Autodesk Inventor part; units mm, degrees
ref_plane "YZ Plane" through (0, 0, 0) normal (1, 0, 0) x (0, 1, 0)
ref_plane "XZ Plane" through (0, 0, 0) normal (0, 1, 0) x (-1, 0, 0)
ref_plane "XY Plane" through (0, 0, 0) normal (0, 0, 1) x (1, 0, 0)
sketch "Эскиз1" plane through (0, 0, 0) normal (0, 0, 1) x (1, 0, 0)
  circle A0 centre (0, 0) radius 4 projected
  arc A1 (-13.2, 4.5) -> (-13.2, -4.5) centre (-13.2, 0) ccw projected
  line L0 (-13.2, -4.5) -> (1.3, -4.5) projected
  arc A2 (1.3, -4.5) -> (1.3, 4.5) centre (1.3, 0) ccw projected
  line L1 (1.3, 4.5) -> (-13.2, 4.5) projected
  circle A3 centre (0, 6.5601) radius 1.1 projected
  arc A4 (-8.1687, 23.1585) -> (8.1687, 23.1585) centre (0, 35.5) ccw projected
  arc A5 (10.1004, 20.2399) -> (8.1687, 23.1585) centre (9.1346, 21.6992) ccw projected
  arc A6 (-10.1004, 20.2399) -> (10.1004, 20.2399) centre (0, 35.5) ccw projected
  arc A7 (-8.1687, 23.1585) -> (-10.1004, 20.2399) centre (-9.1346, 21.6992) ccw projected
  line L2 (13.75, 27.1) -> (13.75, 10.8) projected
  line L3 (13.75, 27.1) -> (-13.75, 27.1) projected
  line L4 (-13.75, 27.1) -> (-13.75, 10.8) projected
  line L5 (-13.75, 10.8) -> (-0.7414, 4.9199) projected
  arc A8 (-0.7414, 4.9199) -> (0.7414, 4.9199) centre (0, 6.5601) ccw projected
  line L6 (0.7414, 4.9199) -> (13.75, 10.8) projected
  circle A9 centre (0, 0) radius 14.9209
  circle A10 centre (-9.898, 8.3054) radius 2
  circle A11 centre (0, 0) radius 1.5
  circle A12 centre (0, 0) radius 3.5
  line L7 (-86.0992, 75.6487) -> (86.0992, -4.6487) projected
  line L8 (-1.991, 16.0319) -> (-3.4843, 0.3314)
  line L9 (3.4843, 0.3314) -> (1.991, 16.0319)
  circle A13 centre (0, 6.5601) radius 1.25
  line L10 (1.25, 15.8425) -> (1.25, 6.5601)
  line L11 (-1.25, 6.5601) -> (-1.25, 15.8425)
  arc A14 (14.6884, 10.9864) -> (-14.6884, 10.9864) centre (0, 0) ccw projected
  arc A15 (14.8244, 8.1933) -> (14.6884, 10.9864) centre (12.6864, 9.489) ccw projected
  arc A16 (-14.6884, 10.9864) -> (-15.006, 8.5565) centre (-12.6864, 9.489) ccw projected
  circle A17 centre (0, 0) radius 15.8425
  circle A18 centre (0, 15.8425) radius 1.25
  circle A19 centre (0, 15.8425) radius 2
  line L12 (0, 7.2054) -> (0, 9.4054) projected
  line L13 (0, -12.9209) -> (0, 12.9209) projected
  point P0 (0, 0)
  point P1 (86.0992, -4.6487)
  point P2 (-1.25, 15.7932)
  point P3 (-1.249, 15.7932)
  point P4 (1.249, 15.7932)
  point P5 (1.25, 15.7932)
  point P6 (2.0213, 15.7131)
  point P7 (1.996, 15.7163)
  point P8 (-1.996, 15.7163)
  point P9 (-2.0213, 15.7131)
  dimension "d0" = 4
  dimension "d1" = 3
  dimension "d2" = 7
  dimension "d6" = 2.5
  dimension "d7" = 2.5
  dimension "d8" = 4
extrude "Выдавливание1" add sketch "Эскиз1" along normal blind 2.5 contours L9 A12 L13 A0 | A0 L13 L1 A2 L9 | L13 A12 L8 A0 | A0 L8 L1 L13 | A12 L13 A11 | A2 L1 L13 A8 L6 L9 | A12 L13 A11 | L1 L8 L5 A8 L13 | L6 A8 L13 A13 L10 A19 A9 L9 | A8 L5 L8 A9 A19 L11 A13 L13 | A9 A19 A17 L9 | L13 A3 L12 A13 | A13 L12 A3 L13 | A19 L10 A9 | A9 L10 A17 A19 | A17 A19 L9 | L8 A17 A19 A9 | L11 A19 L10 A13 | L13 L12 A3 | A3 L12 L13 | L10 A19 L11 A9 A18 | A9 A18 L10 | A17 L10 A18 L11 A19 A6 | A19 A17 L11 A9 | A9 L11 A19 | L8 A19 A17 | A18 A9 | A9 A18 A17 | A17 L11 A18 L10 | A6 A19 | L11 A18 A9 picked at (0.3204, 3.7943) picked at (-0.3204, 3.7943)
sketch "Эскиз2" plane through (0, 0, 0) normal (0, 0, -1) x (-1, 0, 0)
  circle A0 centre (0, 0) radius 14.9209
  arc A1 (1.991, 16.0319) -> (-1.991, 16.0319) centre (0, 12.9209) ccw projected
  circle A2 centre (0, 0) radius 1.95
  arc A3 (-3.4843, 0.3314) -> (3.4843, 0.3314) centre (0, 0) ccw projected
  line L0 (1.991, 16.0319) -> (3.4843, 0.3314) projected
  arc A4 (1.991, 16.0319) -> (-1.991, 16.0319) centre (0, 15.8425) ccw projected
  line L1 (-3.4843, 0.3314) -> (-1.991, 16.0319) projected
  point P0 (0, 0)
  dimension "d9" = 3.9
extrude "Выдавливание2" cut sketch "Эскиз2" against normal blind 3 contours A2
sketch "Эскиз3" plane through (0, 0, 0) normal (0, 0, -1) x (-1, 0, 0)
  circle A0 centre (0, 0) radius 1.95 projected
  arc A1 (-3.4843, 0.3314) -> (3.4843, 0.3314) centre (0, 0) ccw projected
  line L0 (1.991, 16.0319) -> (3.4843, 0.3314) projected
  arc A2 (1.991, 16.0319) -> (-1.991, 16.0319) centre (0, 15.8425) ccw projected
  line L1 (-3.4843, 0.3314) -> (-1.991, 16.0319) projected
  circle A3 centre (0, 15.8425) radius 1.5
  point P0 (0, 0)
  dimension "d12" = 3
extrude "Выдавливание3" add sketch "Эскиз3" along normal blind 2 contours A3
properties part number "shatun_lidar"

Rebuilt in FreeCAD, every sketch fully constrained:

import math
import FreeCAD as App
import Part
import Sketcher

doc = App.newDocument("Part")
body = doc.addObject("PartDesign::Body", "Body")

sketch1 = body.newObject("Sketcher::SketchObject", "Sketch")
sketch1.AttachmentSupport = (doc.getObject("XY_Plane"), [""])
sketch1.MapMode = "FlatFace"
sketch1.addGeometry([
    Part.LineSegment(App.Vector(3.5, 0.3, 0), App.Vector(2, 16, 0)),
    Part.ArcOfCircle(Part.Circle(App.Vector(0, 15.8, 0), App.Vector(0, 0, 1), 2), math.radians(5), math.radians(175)),
    Part.LineSegment(App.Vector(-2, 16, 0), App.Vector(-3.5, 0.3, 0)),
    Part.ArcOfCircle(Part.Circle(App.Vector(0, 0, 0), App.Vector(0, 0, 1), 3.5), math.radians(175), math.radians(365)),
    Part.Circle(App.Vector(0, 0, 0), App.Vector(0, 0, 1), 1.5),
], False)
sketch1.addConstraint([
    Sketcher.Constraint("Tangent", 0, 2, 1, 1),
    Sketcher.Constraint("Tangent", 1, 2, 2, 1),
    Sketcher.Constraint("Tangent", 2, 2, 3, 1),
    Sketcher.Constraint("Tangent", 3, 2, 0, 1),
    Sketcher.Constraint("Coincident", 3, 3, -1, 1),
    Sketcher.Constraint("Coincident", 4, 3, -1, 1),
    Sketcher.Constraint("PointOnObject", 1, 3, -2),
    Sketcher.Constraint("Diameter", 4, 3.0),
    Sketcher.Constraint("Radius", 1, 2.0),
    Sketcher.Constraint("Radius", 3, 3.5),
    Sketcher.Constraint("DistanceY", -1, 1, 0, 2, 16.032),
])
pad1 = body.newObject("PartDesign::Pad", "Pad")
pad1.Profile = sketch1
pad1.Length = 2.5

sketch2 = body.newObject("Sketcher::SketchObject", "Sketch001")
sketch2.AttachmentSupport = (doc.getObject("XY_Plane"), [""])
sketch2.MapMode = "FlatFace"
sketch2.addGeometry(Part.Circle(App.Vector(0, 0, 0), App.Vector(0, 0, 1), 1.9), False)
sketch2.addConstraint([
    Sketcher.Constraint("Coincident", 0, 3, -1, 1),
    Sketcher.Constraint("Diameter", 0, 3.9),
])
pocket1 = body.newObject("PartDesign::Pocket", "Pocket")
pocket1.Profile = sketch2
pocket1.Length = 3
pocket1.Reversed = True

sketch3 = body.newObject("Sketcher::SketchObject", "Sketch002")
sketch3.AttachmentSupport = (doc.getObject("XY_Plane"), [""])
sketch3.MapMode = "FlatFace"
sketch3.addGeometry(Part.Circle(App.Vector(0, 15.8, 0), App.Vector(0, 0, 1), 1.5), False)
sketch3.addConstraint([
    Sketcher.Constraint("PointOnObject", 0, 3, -2),
    Sketcher.Constraint("Diameter", 0, 3.0),
    Sketcher.Constraint("DistanceY", -1, 1, 0, 3, 15.8425),
])
pad2 = body.newObject("PartDesign::Pad", "Pad001")
pad2.Profile = sketch3
pad2.Length = 2
pad2.Reversed = True

doc.recompute()
